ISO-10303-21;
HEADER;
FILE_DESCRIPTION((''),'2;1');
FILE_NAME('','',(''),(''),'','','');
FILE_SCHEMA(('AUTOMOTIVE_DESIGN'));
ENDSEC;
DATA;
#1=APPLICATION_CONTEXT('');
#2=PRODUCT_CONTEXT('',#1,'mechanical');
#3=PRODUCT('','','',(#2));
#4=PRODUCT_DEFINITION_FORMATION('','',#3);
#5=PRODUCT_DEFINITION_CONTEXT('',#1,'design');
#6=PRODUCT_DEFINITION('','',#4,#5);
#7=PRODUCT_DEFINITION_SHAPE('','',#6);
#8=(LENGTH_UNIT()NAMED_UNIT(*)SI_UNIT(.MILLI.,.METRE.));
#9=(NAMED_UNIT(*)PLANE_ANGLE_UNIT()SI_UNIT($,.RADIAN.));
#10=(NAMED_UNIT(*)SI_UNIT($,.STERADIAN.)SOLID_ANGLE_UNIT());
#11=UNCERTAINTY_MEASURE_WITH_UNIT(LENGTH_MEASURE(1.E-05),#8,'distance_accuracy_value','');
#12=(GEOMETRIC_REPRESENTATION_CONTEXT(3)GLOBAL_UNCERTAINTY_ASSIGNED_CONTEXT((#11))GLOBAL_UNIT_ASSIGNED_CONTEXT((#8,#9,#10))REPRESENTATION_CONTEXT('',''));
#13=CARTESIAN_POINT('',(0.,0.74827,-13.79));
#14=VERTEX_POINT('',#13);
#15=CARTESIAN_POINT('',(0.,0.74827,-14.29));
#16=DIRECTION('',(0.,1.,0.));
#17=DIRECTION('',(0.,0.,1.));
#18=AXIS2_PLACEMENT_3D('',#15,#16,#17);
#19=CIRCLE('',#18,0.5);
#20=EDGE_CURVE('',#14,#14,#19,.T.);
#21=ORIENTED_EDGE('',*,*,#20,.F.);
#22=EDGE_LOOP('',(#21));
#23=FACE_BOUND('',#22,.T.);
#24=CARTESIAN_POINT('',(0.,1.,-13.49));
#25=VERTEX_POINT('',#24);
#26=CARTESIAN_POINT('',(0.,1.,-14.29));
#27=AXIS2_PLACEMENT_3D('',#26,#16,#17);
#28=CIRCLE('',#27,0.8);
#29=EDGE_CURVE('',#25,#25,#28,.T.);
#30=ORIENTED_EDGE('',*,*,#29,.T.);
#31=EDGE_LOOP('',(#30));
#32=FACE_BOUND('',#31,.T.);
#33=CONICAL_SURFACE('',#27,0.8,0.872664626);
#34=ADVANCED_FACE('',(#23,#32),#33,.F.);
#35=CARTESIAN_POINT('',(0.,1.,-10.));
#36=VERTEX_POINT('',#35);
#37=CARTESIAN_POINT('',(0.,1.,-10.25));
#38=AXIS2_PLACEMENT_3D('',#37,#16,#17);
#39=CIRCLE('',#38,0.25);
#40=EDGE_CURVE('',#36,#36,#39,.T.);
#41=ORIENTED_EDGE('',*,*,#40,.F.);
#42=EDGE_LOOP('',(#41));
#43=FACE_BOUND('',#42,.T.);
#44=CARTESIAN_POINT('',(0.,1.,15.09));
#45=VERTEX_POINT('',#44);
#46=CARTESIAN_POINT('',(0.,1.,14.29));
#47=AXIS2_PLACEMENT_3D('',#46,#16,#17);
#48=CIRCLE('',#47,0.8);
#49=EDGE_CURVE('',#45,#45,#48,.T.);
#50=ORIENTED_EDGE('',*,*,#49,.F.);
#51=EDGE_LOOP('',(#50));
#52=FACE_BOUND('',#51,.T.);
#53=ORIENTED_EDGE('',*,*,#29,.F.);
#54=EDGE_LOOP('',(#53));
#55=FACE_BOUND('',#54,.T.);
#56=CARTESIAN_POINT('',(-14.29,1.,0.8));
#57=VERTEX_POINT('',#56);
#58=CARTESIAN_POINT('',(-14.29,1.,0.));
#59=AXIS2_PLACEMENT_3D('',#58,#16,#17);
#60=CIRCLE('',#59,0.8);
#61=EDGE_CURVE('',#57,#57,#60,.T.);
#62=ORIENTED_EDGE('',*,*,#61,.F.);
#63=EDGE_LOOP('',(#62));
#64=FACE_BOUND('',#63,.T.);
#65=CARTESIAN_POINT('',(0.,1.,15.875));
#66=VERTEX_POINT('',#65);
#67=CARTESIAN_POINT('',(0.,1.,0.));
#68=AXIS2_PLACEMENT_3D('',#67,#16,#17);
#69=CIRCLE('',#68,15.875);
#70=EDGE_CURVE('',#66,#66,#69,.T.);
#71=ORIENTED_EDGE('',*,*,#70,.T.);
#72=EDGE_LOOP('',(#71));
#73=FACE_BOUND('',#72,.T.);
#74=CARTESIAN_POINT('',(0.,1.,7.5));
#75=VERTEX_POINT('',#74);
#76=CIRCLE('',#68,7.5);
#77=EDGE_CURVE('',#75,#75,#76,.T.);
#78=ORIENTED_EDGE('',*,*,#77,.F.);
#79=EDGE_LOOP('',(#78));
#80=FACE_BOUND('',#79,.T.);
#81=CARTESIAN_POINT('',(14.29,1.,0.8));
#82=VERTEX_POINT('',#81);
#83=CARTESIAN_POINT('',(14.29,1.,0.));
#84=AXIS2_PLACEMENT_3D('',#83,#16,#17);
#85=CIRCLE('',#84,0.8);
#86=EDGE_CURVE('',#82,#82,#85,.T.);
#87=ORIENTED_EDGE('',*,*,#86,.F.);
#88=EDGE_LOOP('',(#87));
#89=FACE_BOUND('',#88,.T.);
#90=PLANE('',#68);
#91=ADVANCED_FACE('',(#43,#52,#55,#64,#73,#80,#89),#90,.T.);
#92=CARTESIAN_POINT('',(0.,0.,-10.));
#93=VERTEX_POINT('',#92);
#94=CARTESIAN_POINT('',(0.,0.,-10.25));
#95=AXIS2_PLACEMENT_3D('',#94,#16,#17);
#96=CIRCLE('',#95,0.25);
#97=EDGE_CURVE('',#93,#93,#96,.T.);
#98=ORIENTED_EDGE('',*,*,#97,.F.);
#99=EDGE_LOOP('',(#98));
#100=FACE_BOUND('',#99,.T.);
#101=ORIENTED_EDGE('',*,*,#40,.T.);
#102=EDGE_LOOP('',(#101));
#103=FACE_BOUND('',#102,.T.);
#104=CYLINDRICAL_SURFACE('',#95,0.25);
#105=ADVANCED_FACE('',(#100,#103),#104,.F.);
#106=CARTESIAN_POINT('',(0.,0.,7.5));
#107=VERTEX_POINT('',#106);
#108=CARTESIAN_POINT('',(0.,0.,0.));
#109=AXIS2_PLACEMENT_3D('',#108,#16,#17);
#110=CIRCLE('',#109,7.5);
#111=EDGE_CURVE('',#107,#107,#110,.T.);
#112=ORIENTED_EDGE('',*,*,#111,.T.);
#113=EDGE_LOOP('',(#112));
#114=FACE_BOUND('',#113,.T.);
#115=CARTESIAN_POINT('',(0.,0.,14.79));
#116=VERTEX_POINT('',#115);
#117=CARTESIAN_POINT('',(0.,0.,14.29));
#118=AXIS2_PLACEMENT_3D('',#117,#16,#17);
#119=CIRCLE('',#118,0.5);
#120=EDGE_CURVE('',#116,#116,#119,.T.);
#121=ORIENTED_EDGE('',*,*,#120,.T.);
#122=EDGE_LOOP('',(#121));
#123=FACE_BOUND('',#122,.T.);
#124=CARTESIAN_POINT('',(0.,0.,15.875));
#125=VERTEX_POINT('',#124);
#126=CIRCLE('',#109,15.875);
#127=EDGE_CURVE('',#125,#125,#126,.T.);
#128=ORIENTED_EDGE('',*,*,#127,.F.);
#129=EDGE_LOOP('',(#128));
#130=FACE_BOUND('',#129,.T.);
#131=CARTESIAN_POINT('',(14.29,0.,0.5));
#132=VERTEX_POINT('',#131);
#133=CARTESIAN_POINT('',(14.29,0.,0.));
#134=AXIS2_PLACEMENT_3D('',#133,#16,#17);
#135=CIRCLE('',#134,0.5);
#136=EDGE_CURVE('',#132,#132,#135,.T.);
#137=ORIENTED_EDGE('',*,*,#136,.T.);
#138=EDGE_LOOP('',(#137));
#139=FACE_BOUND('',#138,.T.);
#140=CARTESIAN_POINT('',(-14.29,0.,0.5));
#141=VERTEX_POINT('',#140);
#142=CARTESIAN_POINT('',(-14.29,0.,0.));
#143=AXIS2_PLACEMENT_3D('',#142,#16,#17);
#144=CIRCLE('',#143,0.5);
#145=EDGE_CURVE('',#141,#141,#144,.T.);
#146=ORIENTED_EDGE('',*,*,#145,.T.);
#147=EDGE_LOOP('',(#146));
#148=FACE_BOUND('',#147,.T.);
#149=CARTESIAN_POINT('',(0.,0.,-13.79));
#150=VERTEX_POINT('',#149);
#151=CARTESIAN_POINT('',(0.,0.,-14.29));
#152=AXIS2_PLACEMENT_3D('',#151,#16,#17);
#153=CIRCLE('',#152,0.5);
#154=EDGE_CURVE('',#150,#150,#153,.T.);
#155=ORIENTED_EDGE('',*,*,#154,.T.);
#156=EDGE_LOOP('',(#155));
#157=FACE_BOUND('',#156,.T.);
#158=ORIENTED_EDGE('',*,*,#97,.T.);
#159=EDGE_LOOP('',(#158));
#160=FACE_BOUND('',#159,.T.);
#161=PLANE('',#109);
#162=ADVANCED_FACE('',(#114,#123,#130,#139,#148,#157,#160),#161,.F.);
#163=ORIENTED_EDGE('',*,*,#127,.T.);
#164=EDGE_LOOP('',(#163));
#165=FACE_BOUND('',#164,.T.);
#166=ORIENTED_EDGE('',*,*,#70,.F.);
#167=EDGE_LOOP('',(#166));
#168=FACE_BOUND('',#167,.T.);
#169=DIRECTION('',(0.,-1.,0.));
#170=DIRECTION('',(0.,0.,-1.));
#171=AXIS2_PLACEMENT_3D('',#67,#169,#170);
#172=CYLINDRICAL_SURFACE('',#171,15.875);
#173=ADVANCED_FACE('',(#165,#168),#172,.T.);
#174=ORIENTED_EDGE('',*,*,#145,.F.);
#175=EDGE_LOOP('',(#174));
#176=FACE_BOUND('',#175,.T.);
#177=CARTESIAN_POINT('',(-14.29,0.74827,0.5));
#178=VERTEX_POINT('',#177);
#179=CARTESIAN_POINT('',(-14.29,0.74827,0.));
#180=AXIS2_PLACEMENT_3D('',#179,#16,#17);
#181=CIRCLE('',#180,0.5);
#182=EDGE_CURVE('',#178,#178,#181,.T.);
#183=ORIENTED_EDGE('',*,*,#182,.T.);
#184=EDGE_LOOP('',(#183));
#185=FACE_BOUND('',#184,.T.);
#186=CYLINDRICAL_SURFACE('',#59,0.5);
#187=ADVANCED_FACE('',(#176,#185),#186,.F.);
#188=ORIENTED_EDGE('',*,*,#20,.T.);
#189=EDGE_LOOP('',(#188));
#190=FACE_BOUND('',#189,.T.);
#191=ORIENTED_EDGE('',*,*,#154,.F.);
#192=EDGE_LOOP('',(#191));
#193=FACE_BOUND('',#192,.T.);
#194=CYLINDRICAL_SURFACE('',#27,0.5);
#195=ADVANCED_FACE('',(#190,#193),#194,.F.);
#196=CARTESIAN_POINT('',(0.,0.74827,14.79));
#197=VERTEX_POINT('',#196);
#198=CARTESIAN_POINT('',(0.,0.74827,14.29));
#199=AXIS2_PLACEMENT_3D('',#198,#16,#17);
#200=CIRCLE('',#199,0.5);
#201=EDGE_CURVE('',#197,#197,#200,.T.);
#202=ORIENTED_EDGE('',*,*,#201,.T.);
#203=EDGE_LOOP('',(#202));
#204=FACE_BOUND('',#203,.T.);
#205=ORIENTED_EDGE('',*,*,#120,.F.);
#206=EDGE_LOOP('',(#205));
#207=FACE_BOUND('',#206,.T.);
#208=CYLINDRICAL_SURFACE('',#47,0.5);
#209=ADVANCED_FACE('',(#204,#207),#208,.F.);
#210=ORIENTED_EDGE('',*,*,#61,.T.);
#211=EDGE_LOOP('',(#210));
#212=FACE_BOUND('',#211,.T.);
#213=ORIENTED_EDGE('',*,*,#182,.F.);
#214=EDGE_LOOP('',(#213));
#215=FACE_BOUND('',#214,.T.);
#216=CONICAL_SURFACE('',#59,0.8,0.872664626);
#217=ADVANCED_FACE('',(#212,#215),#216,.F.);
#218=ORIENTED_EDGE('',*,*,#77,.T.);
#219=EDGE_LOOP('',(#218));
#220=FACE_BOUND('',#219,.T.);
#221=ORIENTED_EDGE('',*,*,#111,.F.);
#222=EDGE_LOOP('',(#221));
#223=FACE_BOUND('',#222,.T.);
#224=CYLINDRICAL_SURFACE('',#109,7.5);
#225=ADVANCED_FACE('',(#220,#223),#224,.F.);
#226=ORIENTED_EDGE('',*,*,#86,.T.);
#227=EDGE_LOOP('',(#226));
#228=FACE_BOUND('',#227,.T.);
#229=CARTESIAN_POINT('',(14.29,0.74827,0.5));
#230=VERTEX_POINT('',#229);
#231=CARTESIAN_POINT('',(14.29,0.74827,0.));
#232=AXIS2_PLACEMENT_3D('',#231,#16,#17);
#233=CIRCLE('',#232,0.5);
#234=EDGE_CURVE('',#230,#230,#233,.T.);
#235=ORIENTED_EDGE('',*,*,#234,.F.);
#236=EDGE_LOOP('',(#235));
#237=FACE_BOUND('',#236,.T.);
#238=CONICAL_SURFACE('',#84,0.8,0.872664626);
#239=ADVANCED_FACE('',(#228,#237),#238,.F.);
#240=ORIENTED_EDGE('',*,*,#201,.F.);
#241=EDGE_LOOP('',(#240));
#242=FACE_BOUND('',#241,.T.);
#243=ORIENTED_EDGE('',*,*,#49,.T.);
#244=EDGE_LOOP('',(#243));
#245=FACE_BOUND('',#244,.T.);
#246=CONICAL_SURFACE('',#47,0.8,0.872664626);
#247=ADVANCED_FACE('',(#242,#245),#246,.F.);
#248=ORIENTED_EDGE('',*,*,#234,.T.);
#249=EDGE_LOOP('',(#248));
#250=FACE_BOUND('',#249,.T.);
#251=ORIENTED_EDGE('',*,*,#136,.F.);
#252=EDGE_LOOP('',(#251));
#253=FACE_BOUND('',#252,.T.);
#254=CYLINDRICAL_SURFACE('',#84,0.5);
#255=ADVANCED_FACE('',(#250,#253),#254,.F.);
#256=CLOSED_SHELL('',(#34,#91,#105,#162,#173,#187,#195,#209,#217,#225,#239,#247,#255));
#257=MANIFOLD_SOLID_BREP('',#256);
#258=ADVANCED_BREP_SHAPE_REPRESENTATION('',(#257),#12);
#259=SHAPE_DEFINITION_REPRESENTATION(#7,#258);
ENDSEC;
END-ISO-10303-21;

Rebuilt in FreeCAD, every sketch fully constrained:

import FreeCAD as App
import Part
import Sketcher

V = App.Vector
Q = App.Units.Quantity

doc = App.newDocument("Part")
body = doc.addObject("PartDesign::Body", "Body")

# Sketch on XZ plane
sketch1 = body.newObject("Sketcher::SketchObject", "Sketch")
sketch1.AttachmentSupport = (doc.getObject("XZ_Plane"), [""])
sketch1.MapMode = "FlatFace"
sketch1.addGeometry(Part.Circle(V(0, 0, 0), V(0, 0, 1), 15.875), False)
sketch1.addConstraint([
    Sketcher.Constraint("Coincident", 0, 3, -1, 1),
    Sketcher.Constraint("Diameter", 0, Q("31.75 mm")),
])
pad1 = body.newObject("PartDesign::Pad", "Pad")
pad1.Profile = sketch1
pad1.Length = 1
pad1.Reversed = True

# Sketch on XZ plane
sketch2 = body.newObject("Sketcher::SketchObject", "Sketch001")
sketch2.AttachmentSupport = (doc.getObject("XZ_Plane"), [""])
sketch2.MapMode = "FlatFace"
sketch2.AttachmentOffset = App.Placement(V(0, 0, -1), App.Rotation())
sketch2.addGeometry(Part.Circle(V(0, 0, 0), V(0, 0, 1), 7.5), False)
sketch2.addConstraint([
    Sketcher.Constraint("Coincident", 0, 3, -1, 1),
    Sketcher.Constraint("Diameter", 0, Q("15 mm")),
])
pocket1 = body.newObject("PartDesign::Pocket", "Pocket")
pocket1.Profile = sketch2
pocket1.Type = "ThroughAll"
pocket1.Midplane = True

# Sketch on XZ plane
sketch3 = body.newObject("Sketcher::SketchObject", "Sketch002")
sketch3.AttachmentSupport = (doc.getObject("XZ_Plane"), [""])
sketch3.MapMode = "FlatFace"
sketch3.AttachmentOffset = App.Placement(V(0, 0, -1), App.Rotation())
sketch3.addGeometry(Part.Circle(V(0, -10.25, 0), V(0, 0, 1), 0.25), False)
sketch3.addConstraint([
    Sketcher.Constraint("PointOnObject", 0, 3, -2),
    Sketcher.Constraint("Diameter", 0, Q("0.5 mm")),
    Sketcher.Constraint("DistanceY", 0, 3, -1, 1, Q("10.25 mm")),
])
pocket2 = body.newObject("PartDesign::Pocket", "Pocket001")
pocket2.Profile = sketch3
pocket2.Type = "ThroughAll"
pocket2.Midplane = True

# Sketch on XZ plane
sketch4 = body.newObject("Sketcher::SketchObject", "Sketch003")
sketch4.AttachmentSupport = (doc.getObject("XZ_Plane"), [""])
sketch4.MapMode = "FlatFace"
sketch4.AttachmentOffset = App.Placement(V(0, 0, -1), App.Rotation())
sketch4.addGeometry([
    Part.Circle(V(0, -14.29, 0), V(0, 0, 1), 0.5),
    Part.Circle(V(14.29, 0, 0), V(0, 0, 1), 0.5),
    Part.Circle(V(0, 14.29, 0), V(0, 0, 1), 0.5),
    Part.Circle(V(-14.29, 0, 0), V(0, 0, 1), 0.5),
], False)
sketch4.addConstraint([
    Sketcher.Constraint("Equal", 0, 1),
    Sketcher.Constraint("Equal", 1, 2),
    Sketcher.Constraint("Equal", 2, 3),
    Sketcher.Constraint("Symmetric", 0, 3, 2, 3, -1, 1),
    Sketcher.Constraint("Symmetric", 1, 3, 3, 3, -1, 1),
    Sketcher.Constraint("PointOnObject", 0, 3, -2),
    Sketcher.Constraint("PointOnObject", 1, 3, -1),
    Sketcher.Constraint("Diameter", 0, Q("1 mm")),
    Sketcher.Constraint("DistanceY", 0, 3, -1, 1, Q("14.29 mm")),
    Sketcher.Constraint("DistanceX", -1, 1, 1, 3, Q("14.29 mm")),
])
doc.recompute()
hole = body.newObject("PartDesign::Hole", "Hole")
hole.Profile = sketch4
hole.ThreadType = "None"
hole.Diameter = 1
hole.DepthType = "ThroughAll"
hole.HoleCutType = "Countersink"
hole.HoleCutDiameter = 1.6
hole.HoleCutCountersinkAngle = 100
hole.Reversed = True

doc.recompute()
